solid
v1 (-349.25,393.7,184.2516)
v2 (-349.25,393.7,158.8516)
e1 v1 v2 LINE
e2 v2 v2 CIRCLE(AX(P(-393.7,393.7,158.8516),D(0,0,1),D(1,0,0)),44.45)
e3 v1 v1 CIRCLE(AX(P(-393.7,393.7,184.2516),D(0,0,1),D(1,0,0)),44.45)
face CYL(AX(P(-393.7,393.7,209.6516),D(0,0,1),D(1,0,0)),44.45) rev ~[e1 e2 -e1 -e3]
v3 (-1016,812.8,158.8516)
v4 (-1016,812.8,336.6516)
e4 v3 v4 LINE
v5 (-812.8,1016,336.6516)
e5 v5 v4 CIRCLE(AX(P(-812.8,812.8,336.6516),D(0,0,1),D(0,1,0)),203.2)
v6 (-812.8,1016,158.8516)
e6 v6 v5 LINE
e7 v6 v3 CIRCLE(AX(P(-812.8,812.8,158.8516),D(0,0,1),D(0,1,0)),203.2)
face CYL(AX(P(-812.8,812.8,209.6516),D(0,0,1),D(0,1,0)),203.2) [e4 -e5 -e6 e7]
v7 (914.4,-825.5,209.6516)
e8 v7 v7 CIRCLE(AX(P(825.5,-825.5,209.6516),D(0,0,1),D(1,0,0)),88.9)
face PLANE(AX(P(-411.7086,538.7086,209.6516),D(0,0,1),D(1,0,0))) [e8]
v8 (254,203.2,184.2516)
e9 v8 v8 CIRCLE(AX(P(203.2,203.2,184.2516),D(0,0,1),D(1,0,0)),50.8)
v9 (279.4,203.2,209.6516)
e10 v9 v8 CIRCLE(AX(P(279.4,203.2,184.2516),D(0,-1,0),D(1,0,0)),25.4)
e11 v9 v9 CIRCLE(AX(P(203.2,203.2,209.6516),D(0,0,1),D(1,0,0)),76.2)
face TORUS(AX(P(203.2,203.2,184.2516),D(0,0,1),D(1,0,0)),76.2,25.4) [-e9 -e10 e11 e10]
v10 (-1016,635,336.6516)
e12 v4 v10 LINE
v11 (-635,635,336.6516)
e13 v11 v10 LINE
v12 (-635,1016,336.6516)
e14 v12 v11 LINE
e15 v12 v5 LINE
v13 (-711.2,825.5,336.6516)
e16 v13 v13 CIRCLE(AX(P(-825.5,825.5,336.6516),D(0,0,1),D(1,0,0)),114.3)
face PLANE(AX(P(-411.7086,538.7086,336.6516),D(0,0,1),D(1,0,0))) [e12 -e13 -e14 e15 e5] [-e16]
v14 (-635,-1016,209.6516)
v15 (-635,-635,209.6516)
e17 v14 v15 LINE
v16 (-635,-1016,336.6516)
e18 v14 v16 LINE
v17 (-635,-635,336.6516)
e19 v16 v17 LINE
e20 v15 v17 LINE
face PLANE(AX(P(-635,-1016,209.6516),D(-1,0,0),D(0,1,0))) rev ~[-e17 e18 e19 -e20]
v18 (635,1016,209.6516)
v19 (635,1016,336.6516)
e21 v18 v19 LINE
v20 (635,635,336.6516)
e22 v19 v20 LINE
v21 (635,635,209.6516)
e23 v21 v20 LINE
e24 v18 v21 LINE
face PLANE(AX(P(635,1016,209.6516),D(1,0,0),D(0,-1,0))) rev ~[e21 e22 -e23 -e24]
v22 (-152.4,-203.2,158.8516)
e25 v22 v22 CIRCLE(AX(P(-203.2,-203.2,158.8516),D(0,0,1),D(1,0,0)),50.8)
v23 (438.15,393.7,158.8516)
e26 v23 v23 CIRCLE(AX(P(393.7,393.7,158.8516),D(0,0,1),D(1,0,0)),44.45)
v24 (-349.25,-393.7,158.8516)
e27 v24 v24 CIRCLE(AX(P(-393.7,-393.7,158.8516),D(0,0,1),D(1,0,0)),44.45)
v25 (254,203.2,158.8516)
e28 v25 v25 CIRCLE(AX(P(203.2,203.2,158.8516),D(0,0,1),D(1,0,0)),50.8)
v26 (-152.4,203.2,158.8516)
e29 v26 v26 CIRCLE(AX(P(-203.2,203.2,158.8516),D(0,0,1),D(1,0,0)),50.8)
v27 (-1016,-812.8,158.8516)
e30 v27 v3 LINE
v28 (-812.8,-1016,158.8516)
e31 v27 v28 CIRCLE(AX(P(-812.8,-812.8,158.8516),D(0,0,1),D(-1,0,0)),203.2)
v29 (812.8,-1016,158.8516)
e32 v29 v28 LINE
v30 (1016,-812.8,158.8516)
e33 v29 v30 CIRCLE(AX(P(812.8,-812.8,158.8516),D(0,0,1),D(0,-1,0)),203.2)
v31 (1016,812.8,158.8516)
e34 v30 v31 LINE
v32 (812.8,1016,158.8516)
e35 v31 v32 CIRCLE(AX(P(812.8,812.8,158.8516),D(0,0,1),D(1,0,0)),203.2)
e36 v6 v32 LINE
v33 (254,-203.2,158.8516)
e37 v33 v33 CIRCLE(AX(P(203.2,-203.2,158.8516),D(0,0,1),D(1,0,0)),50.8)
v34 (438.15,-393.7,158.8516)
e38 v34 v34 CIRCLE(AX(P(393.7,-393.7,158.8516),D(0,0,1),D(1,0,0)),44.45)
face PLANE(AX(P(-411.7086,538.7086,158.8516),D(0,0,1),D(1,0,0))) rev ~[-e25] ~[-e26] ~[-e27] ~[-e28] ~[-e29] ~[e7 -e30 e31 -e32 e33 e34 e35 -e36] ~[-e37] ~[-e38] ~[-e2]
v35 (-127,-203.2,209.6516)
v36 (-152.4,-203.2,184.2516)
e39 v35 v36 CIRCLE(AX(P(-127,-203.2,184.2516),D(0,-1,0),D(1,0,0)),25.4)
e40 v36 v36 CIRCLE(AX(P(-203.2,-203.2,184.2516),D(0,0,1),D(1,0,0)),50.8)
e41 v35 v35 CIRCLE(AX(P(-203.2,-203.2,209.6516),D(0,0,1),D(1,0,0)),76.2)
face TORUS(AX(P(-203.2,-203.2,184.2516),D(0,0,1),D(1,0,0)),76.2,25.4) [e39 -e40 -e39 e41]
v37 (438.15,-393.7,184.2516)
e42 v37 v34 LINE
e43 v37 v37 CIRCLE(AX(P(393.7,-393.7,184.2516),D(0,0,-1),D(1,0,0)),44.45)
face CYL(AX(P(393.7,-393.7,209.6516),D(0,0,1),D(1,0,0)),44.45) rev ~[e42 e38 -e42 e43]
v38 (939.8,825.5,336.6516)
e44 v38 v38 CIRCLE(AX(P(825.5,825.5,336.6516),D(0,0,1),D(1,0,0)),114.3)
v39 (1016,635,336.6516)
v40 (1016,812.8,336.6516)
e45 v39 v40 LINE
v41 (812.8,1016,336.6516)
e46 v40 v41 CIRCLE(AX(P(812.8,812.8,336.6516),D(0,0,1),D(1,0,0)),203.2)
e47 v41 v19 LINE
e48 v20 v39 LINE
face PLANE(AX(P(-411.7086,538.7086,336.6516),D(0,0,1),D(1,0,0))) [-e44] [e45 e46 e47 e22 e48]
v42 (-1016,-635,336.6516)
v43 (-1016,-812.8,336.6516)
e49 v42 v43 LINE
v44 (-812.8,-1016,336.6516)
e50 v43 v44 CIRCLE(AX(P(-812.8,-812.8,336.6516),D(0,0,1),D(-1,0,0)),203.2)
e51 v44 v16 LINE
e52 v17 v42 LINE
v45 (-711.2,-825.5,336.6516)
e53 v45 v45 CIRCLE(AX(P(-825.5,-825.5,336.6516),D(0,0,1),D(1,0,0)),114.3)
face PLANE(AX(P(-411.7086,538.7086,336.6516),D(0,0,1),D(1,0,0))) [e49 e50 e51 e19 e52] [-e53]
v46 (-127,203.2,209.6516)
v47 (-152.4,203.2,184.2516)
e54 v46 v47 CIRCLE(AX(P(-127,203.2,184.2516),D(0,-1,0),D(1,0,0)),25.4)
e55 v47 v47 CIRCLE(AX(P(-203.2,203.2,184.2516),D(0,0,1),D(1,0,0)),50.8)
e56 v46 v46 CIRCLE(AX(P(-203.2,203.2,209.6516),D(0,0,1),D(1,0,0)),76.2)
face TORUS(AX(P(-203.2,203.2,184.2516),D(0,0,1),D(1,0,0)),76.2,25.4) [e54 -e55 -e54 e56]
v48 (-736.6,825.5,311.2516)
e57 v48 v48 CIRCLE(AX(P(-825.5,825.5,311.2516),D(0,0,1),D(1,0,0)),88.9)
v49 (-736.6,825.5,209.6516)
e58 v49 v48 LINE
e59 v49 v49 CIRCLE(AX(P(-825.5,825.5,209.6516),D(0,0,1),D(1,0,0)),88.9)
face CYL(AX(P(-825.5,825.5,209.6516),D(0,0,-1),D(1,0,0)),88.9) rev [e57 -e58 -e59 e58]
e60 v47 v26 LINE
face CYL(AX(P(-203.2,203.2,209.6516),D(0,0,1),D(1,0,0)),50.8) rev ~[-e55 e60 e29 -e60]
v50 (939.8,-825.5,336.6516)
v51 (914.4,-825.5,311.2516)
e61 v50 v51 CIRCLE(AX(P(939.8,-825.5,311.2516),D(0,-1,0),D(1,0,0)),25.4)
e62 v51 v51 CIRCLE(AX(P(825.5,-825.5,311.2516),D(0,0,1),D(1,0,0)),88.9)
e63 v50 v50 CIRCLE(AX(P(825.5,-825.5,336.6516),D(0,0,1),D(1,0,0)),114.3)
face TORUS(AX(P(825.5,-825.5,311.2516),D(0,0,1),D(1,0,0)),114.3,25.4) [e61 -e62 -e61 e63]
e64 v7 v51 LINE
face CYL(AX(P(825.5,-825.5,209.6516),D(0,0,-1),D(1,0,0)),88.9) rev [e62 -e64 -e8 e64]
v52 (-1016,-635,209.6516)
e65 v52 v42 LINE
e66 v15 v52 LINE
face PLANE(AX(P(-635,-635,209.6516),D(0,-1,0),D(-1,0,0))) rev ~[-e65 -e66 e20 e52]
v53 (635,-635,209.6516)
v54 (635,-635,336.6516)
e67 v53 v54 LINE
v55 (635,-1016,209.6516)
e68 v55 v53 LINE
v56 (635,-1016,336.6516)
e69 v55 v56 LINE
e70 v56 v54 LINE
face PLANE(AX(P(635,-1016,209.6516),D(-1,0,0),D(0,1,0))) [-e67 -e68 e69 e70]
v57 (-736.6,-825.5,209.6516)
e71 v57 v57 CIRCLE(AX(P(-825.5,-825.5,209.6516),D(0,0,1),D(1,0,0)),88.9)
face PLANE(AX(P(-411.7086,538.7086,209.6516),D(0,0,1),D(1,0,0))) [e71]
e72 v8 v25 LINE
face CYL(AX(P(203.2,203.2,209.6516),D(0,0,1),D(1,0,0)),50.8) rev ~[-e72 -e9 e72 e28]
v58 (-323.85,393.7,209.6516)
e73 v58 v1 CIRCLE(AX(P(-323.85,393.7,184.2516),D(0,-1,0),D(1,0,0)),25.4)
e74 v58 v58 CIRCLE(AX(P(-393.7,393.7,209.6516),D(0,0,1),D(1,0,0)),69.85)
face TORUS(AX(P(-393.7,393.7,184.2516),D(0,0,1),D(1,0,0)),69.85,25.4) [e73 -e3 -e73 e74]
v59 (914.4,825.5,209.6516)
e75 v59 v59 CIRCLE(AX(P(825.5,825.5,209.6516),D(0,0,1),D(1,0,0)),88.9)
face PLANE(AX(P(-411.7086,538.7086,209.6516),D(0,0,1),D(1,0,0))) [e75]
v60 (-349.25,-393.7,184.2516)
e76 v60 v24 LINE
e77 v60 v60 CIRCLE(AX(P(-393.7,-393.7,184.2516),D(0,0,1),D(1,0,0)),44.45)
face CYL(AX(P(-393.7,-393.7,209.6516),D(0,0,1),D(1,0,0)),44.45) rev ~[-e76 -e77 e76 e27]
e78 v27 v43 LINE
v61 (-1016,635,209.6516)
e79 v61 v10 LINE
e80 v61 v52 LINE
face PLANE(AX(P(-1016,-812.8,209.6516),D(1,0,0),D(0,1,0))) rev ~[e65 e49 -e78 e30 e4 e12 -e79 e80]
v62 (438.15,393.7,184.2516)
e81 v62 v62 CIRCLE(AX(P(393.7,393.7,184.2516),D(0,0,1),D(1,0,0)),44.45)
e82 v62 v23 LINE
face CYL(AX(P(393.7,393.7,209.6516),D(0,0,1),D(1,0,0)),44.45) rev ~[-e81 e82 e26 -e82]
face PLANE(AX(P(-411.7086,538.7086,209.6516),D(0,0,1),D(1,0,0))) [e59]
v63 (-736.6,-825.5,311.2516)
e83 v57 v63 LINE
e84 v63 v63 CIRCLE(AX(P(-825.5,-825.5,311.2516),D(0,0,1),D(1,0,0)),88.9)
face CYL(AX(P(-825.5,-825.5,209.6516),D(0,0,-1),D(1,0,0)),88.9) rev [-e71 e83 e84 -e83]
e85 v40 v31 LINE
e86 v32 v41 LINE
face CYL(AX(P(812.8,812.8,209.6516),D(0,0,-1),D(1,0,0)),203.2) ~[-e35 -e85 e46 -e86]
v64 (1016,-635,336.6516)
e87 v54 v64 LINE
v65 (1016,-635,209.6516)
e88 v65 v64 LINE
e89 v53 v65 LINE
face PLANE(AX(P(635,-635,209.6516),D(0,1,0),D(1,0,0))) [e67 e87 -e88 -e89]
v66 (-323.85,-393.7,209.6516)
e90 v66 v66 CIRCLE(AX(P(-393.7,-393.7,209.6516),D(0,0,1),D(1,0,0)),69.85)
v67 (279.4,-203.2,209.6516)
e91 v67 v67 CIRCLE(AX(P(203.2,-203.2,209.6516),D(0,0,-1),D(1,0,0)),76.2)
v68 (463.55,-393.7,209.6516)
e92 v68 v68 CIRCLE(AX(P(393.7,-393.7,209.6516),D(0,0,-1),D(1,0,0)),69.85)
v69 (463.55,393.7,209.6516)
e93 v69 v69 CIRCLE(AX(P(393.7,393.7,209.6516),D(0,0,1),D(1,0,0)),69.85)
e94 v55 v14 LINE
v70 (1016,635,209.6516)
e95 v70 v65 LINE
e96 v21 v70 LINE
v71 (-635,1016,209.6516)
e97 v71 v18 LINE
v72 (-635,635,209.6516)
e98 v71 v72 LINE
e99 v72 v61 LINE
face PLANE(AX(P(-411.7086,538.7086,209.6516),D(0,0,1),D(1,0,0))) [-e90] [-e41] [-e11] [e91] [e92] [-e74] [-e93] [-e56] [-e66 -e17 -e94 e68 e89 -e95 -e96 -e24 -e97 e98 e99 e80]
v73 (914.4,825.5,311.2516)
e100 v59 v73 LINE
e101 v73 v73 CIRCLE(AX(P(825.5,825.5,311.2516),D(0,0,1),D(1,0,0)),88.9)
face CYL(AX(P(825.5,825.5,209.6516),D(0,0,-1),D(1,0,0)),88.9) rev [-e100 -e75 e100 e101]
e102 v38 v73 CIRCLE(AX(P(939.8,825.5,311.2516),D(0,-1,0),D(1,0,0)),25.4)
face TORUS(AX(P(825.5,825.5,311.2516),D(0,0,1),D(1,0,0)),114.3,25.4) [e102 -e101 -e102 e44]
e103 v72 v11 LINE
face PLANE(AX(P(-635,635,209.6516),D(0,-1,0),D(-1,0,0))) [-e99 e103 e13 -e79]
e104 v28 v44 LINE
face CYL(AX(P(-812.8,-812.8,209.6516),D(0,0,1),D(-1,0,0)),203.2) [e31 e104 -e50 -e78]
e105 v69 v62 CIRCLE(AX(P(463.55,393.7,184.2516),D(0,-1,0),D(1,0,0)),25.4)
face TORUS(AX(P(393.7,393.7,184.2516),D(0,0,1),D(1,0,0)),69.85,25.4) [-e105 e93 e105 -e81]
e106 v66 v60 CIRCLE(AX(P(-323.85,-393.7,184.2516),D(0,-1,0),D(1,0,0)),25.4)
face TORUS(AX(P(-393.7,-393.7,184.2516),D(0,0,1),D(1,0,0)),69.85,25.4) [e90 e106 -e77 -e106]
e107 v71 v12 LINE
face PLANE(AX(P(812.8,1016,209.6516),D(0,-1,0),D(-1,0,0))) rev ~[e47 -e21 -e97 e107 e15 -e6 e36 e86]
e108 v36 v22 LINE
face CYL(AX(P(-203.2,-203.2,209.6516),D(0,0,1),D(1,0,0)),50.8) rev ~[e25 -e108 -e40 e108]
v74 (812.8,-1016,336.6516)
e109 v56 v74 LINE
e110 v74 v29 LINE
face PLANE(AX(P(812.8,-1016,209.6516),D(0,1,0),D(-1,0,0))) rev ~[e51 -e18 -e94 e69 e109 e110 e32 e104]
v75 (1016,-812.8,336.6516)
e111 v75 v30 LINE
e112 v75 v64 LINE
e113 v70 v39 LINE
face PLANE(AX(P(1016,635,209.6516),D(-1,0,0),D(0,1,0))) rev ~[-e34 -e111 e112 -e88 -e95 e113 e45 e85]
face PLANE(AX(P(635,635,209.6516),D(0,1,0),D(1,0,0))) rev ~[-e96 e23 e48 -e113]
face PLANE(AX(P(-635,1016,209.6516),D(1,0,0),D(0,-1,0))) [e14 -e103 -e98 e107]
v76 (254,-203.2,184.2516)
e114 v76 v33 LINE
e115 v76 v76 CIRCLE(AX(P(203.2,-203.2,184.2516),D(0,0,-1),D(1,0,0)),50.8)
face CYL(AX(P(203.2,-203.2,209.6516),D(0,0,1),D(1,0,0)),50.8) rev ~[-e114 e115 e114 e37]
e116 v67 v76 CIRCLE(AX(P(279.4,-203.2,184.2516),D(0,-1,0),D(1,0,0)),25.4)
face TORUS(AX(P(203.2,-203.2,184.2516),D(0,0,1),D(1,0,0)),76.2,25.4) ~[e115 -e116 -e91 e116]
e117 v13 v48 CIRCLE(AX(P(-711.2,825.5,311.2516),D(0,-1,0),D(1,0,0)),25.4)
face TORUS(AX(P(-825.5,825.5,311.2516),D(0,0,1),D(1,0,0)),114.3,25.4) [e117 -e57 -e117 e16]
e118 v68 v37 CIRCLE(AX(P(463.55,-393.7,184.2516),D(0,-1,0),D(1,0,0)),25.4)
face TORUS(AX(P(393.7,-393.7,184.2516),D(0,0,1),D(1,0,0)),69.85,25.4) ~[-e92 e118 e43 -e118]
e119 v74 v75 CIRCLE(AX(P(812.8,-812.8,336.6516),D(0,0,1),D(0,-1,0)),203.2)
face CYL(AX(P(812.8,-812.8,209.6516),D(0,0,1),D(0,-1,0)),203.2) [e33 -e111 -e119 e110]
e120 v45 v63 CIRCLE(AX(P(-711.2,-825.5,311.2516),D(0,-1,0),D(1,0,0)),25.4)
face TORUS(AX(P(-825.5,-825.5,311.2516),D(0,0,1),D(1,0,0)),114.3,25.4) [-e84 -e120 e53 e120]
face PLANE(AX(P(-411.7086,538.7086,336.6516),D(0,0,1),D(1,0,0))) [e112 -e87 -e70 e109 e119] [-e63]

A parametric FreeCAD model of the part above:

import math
import FreeCAD as App
import Part
import Sketcher
Q = App.Units.Quantity


def edges_at(feature, points):
    """Names of the edges that pass closest to the given points."""
    edges = feature.Shape.Edges
    near = lambda p: min(range(len(edges)), key=lambda i: edges[i].distToShape(Part.Vertex(*p))[0])
    return sorted({f"Edge{near(p) + 1}" for p in points})

doc = App.newDocument("Part")
body = doc.addObject("PartDesign::Body", "Body")
body.AllowCompound = True

# Sketch on XY plane
sketch1 = body.newObject("Sketcher::SketchObject", "Sketch")
sketch1.AttachmentSupport = (doc.getObject("XY_Plane"), [""])
sketch1.MapMode = "FlatFace"
sketch1.AttachmentOffset = App.Placement(App.Vector(0, 0, 8.254 * 25.4), App.Rotation())
sketch1.addGeometry([
    Part.ArcOfCircle(Part.Circle(App.Vector(813, 813, 0), App.Vector(0, 0, 1), 203), math.radians(0), math.radians(90)),  # 0
    Part.LineSegment(App.Vector(813, 1016, 0), App.Vector(635, 1016, 0)),  # 1
    Part.LineSegment(App.Vector(635, 1016, 0), App.Vector(635, 635, 0)),  # 2
    Part.LineSegment(App.Vector(635, 635, 0), App.Vector(1016, 635, 0)),  # 3
    Part.LineSegment(App.Vector(1016, 635, 0), App.Vector(1016, 813, 0)),  # 4
    Part.Circle(App.Vector(826, 826, 0), App.Vector(0, 0, 1), 89),  # 5
    Part.LineSegment(App.Vector(-635, 635, 0), App.Vector(-635, 1016, 0)),  # 6
    Part.LineSegment(App.Vector(-635, 1016, 0), App.Vector(-813, 1016, 0)),  # 7
    Part.ArcOfCircle(Part.Circle(App.Vector(-813, 813, 0), App.Vector(0, 0, 1), 203), math.radians(90), math.radians(180)),  # 8
    Part.LineSegment(App.Vector(-1016, 813, 0), App.Vector(-1016, 635, 0)),  # 9
    Part.LineSegment(App.Vector(-1016, 635, 0), App.Vector(-635, 635, 0)),  # 10
    Part.Circle(App.Vector(-826, 826, 0), App.Vector(0, 0, 1), 89),  # 11
    Part.LineSegment(App.Vector(1016, -813, 0), App.Vector(1016, -635, 0)),  # 12
    Part.LineSegment(App.Vector(1016, -635, 0), App.Vector(635, -635, 0)),  # 13
    Part.LineSegment(App.Vector(635, -635, 0), App.Vector(635, -1016, 0)),  # 14
    Part.LineSegment(App.Vector(635, -1016, 0), App.Vector(813, -1016, 0)),  # 15
    Part.ArcOfCircle(Part.Circle(App.Vector(813, -813, 0), App.Vector(0, 0, 1), 203), math.radians(-90), math.radians(0)),  # 16
    Part.Circle(App.Vector(826, -826, 0), App.Vector(0, 0, 1), 89),  # 17
    Part.LineSegment(App.Vector(-635, -635, 0), App.Vector(-1016, -635, 0)),  # 18
    Part.LineSegment(App.Vector(-1016, -635, 0), App.Vector(-1016, -813, 0)),  # 19
    Part.ArcOfCircle(Part.Circle(App.Vector(-813, -813, 0), App.Vector(0, 0, 1), 203), math.radians(180), math.radians(270)),  # 20
    Part.LineSegment(App.Vector(-813, -1016, 0), App.Vector(-635, -1016, 0)),  # 21
    Part.LineSegment(App.Vector(-635, -1016, 0), App.Vector(-635, -635, 0)),  # 22
    Part.Circle(App.Vector(-826, -826, 0), App.Vector(0, 0, 1), 89),  # 23
], False)
sketch1.addConstraint([
    Sketcher.Constraint("Tangent", 0, 2, 1, 1),
    Sketcher.Constraint("Coincident", 1, 2, 2, 1),
    Sketcher.Constraint("Coincident", 2, 2, 3, 1),
    Sketcher.Constraint("Coincident", 3, 2, 4, 1),
    Sketcher.Constraint("Tangent", 4, 2, 0, 1),
    Sketcher.Constraint("Coincident", 6, 2, 7, 1),
    Sketcher.Constraint("Tangent", 7, 2, 8, 1),
    Sketcher.Constraint("Tangent", 8, 2, 9, 1),
    Sketcher.Constraint("Coincident", 9, 2, 10, 1),
    Sketcher.Constraint("Coincident", 10, 2, 6, 1),
    Sketcher.Constraint("Coincident", 12, 2, 13, 1),
    Sketcher.Constraint("Coincident", 13, 2, 14, 1),
    Sketcher.Constraint("Coincident", 14, 2, 15, 1),
    Sketcher.Constraint("Tangent", 15, 2, 16, 1),
    Sketcher.Constraint("Tangent", 16, 2, 12, 1),
    Sketcher.Constraint("Coincident", 18, 2, 19, 1),
    Sketcher.Constraint("Tangent", 19, 2, 20, 1),
    Sketcher.Constraint("Tangent", 20, 2, 21, 1),
    Sketcher.Constraint("Coincident", 21, 2, 22, 1),
    Sketcher.Constraint("Coincident", 22, 2, 18, 1),
    Sketcher.Constraint("Horizontal", 1),
    Sketcher.Constraint("Vertical", 2),
    Sketcher.Constraint("Horizontal", 3),
    Sketcher.Constraint("Vertical", 4),
    Sketcher.Constraint("Vertical", 6),
    Sketcher.Constraint("Horizontal", 7),
    Sketcher.Constraint("Vertical", 9),
    Sketcher.Constraint("Horizontal", 10),
    Sketcher.Constraint("Vertical", 12),
    Sketcher.Constraint("Horizontal", 13),
    Sketcher.Constraint("Vertical", 14),
    Sketcher.Constraint("Horizontal", 15),
    Sketcher.Constraint("Horizontal", 18),
    Sketcher.Constraint("Vertical", 19),
    Sketcher.Constraint("Horizontal", 21),
    Sketcher.Constraint("Vertical", 22),
    Sketcher.Constraint("Equal", 0, 8),
    Sketcher.Constraint("Equal", 5, 11),
    Sketcher.Constraint("Equal", 8, 16),
    Sketcher.Constraint("Equal", 11, 17),
    Sketcher.Constraint("Equal", 16, 20),
    Sketcher.Constraint("Equal", 17, 23),
    Sketcher.Constraint("Symmetric", 8, 3, 16, 3, -1, 1),
    Sketcher.Constraint("Symmetric", 11, 3, 17, 3, -1, 1),
    Sketcher.Constraint("Symmetric", 0, 3, 20, 3, -1, 1),
    Sketcher.Constraint("Symmetric", 5, 3, 23, 3, -1, 1),
    Sketcher.Constraint("Symmetric", 10, 2, 13, 2, -1, 1),
    Sketcher.Constraint("Symmetric", 2, 2, 22, 2, -1, 1),
    Sketcher.Constraint("Symmetric", 0, 3, 8, 3, -2),
    Sketcher.Constraint("Symmetric", 5, 3, 11, 3, -2),
    Sketcher.Constraint("Symmetric", 2, 2, 10, 2, -2),
    Sketcher.Constraint("Equal", 18, 2),
    Sketcher.Constraint("Diameter", 5, Q("7 in")),
    Sketcher.Constraint("Radius", 0, Q("8 in")),
    Sketcher.Constraint("DistanceX", 1, 2, 1, 1, Q("7 in")),
    Sketcher.Constraint("DistanceY", -1, 1, 0, 2, Q("40 in")),
    Sketcher.Constraint("DistanceX", -1, 1, 3, 2, Q("40 in")),
    Sketcher.Constraint("DistanceX", 11, 3, 5, 3, Q("65 in")),
    Sketcher.Constraint("DistanceY", 17, 3, 5, 3, Q("65 in")),
])
pad1 = body.newObject("PartDesign::Pad", "Pad")
pad1.Profile = sketch1
pad1.Length = Q("5 in")

# Sketch on XY plane
sketch2 = body.newObject("Sketcher::SketchObject", "Sketch001")
sketch2.AttachmentSupport = (doc.getObject("XY_Plane"), [""])
sketch2.MapMode = "FlatFace"
sketch2.AttachmentOffset = App.Placement(App.Vector(0, 0, 8.254 * 25.4), App.Rotation())
sketch2.addGeometry([
    Part.ArcOfCircle(Part.Circle(App.Vector(813, -813, 0), App.Vector(0, 0, 1), 203), math.radians(-90), math.radians(0)),  # 0
    Part.LineSegment(App.Vector(1016, -813, 0), App.Vector(1016, 813, 0)),  # 1
    Part.ArcOfCircle(Part.Circle(App.Vector(813, 813, 0), App.Vector(0, 0, 1), 203), math.radians(0), math.radians(90)),  # 2
    Part.LineSegment(App.Vector(813, 1016, 0), App.Vector(-813, 1016, 0)),  # 3
    Part.ArcOfCircle(Part.Circle(App.Vector(-813, 813, 0), App.Vector(0, 0, 1), 203), math.radians(90), math.radians(180)),  # 4
    Part.LineSegment(App.Vector(-1016, 813, 0), App.Vector(-1016, -813, 0)),  # 5
    Part.ArcOfCircle(Part.Circle(App.Vector(-813, -813, 0), App.Vector(0, 0, 1), 203), math.radians(180), math.radians(270)),  # 6
    Part.LineSegment(App.Vector(-813, -1016, 0), App.Vector(813, -1016, 0)),  # 7
    Part.Circle(App.Vector(-394, -394, 0), App.Vector(0, 0, 1), 44),  # 8
    Part.Circle(App.Vector(-203, -203, 0), App.Vector(0, 0, 1), 51),  # 9
    Part.Circle(App.Vector(394, -394, 0), App.Vector(0, 0, 1), 44),  # 10
    Part.Circle(App.Vector(-203, 203, 0), App.Vector(0, 0, 1), 51),  # 11
    Part.Circle(App.Vector(-394, 394, 0), App.Vector(0, 0, 1), 44),  # 12
    Part.Circle(App.Vector(203, 203, 0), App.Vector(0, 0, 1), 51),  # 13
    Part.Circle(App.Vector(394, 394, 0), App.Vector(0, 0, 1), 44),  # 14
    Part.Circle(App.Vector(203, -203, 0), App.Vector(0, 0, 1), 51),  # 15
], False)
sketch2.addConstraint([
    Sketcher.Constraint("Tangent", 0, 2, 1, 1),
    Sketcher.Constraint("Tangent", 1, 2, 2, 1),
    Sketcher.Constraint("Tangent", 2, 2, 3, 1),
    Sketcher.Constraint("Tangent", 3, 2, 4, 1),
    Sketcher.Constraint("Tangent", 4, 2, 5, 1),
    Sketcher.Constraint("Tangent", 5, 2, 6, 1),
    Sketcher.Constraint("Tangent", 6, 2, 7, 1),
    Sketcher.Constraint("Tangent", 7, 2, 0, 1),
    Sketcher.Constraint("Vertical", 1),
    Sketcher.Constraint("Horizontal", 3),
    Sketcher.Constraint("Vertical", 5),
    Sketcher.Constraint("Horizontal", 7),
    Sketcher.Constraint("Equal", 0, 2),
    Sketcher.Constraint("Equal", 2, 4),
    Sketcher.Constraint("Equal", 4, 6),
    Sketcher.Constraint("Equal", 8, 10),
    Sketcher.Constraint("Equal", 9, 11),
    Sketcher.Constraint("Equal", 10, 12),
    Sketcher.Constraint("Equal", 11, 13),
    Sketcher.Constraint("Equal", 12, 14),
    Sketcher.Constraint("Equal", 13, 15),
    Sketcher.Constraint("Symmetric", 0, 3, 4, 3, -1, 1),
    Sketcher.Constraint("Symmetric", 10, 3, 12, 3, -1, 1),
    Sketcher.Constraint("Symmetric", 9, 3, 13, 3, -1, 1),
    Sketcher.Constraint("Symmetric", 8, 3, 14, 3, -1, 1),
    Sketcher.Constraint("Symmetric", 11, 3, 15, 3, -1, 1),
    Sketcher.Constraint("Symmetric", 8, 3, 10, 3, -2),
    Sketcher.Constraint("Symmetric", 11, 3, 13, 3, -2),
    Sketcher.Constraint("Equal", 7, 1),
    Sketcher.Constraint("Diameter", 9, Q("4 in")),
    Sketcher.Constraint("Radius", 0, Q("8 in")),
    Sketcher.Constraint("Diameter", 8, Q("3.5 in")),
    Sketcher.Constraint("DistanceX", 9, 3, -1, 1, Q("8 in")),
    Sketcher.Constraint("DistanceY", 9, 3, -1, 1, Q("8 in")),
    Sketcher.Constraint("DistanceX", -1, 1, 0, 2, Q("40 in")),
    Sketcher.Constraint("DistanceX", 8, 3, -1, 1, Q("15.5 in")),
    Sketcher.Constraint("DistanceY", 8, 3, -1, 1, Q("15.5 in")),
])
pad2 = body.newObject("PartDesign::Pad", "Pad001")
pad2.Profile = sketch2
pad2.Length = Q("2 in")
pad2.Reversed = True
doc.recompute()

fillet = body.newObject("PartDesign::Fillet", "Fillet")
fillet.Base = (pad2, edges_at(pad2, [
    (-254, -203.2, 209.652),
    (-254, 203.2, 209.652),
    (152.4, 203.2, 209.652),
    (152.4, -203.2, 209.652),
    (-438.15, -393.7, 209.652),
    (-438.15, 393.7, 209.652),
    (349.25, 393.7, 209.652),
    (349.25, -393.7, 209.652),
    (736.6, 825.5, 336.652),
    (736.6, -825.5, 336.652),
    (-914.4, -825.5, 336.652),
    (-914.4, 825.5, 336.652),
]))
fillet.Radius = Q("1 in")

doc.recompute()
